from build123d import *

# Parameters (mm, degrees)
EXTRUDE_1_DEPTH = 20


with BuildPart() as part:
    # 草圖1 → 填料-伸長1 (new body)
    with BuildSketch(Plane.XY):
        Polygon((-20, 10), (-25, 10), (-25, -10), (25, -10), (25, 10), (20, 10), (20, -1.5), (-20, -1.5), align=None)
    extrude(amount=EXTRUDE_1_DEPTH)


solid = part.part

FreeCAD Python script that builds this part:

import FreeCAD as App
import Part
import Sketcher

V = App.Vector


def add_polygon(sketch, points):
    """Adds a closed chain of lines whose ends are joined by coincident constraints."""
    first, n = sketch.GeometryCount, len(points)
    for a, b in zip(points, points[1:] + points[:1]):
        sketch.addGeometry(Part.LineSegment(App.Vector(*a, 0), App.Vector(*b, 0)), False)
    for i in range(n):
        sketch.addConstraint(Sketcher.Constraint("Coincident", first + i, 2, first + (i + 1) % n, 1))

doc = App.newDocument("Part")
params = doc.addObject("Spreadsheet::Sheet", "Params")
for row, (alias, value) in enumerate([
    ("sketch1_width", "5 mm"),
    ("sketch1_width2", "50 mm"),
    ("sketch1_height", "20 mm"),
    ("sketch1_height2", "11.5 mm"),
    ("pad1_length", "20 mm"),
], start=1):
    params.set(f"A{row}", alias)
    params.set(f"B{row}", "=" + value)
    params.setAlias(f"B{row}", alias)

body = doc.addObject("PartDesign::Body", "Body")

sketch1 = body.newObject("Sketcher::SketchObject", "Sketch")
sketch1.AttachmentSupport = (doc.getObject("XY_Plane"), [""])
sketch1.MapMode = "FlatFace"
add_polygon(sketch1, [(-20, 10), (-25, 10), (-25, -10), (25, -10), (25, 10), (20, 10), (20, -2), (-20, -2)])
sketch1.addConstraint([
    Sketcher.Constraint("Horizontal", 0),
    Sketcher.Constraint("Vertical", 1),
    Sketcher.Constraint("Horizontal", 2),
    Sketcher.Constraint("Vertical", 3),
    Sketcher.Constraint("Horizontal", 4),
    Sketcher.Constraint("Vertical", 5),
    Sketcher.Constraint("Horizontal", 6),
    Sketcher.Constraint("Vertical", 7),
    Sketcher.Constraint("Symmetric", 0, 2, 2, 2, -1, 1),
    Sketcher.Constraint("Symmetric", 4, 2, 7, 2, -2),
    Sketcher.Constraint("DistanceX", 0, 2, 0, 1, 5.0),
    Sketcher.Constraint("DistanceX", 2, 1, 2, 2, 50.0),
    Sketcher.Constraint("DistanceY", 1, 2, 1, 1, 20.0),
    Sketcher.Constraint("DistanceY", 5, 2, 5, 1, 11.5),
])
sketch1.setExpression("Constraints[18]", "Params.sketch1_width")
sketch1.setExpression("Constraints[19]", "Params.sketch1_width2")
sketch1.setExpression("Constraints[20]", "Params.sketch1_height")
sketch1.setExpression("Constraints[21]", "Params.sketch1_height2")
pad1 = body.newObject("PartDesign::Pad", "Pad")
pad1.Profile = sketch1
pad1.setExpression("Length", "Params.pad1_length")

doc.recompute()
